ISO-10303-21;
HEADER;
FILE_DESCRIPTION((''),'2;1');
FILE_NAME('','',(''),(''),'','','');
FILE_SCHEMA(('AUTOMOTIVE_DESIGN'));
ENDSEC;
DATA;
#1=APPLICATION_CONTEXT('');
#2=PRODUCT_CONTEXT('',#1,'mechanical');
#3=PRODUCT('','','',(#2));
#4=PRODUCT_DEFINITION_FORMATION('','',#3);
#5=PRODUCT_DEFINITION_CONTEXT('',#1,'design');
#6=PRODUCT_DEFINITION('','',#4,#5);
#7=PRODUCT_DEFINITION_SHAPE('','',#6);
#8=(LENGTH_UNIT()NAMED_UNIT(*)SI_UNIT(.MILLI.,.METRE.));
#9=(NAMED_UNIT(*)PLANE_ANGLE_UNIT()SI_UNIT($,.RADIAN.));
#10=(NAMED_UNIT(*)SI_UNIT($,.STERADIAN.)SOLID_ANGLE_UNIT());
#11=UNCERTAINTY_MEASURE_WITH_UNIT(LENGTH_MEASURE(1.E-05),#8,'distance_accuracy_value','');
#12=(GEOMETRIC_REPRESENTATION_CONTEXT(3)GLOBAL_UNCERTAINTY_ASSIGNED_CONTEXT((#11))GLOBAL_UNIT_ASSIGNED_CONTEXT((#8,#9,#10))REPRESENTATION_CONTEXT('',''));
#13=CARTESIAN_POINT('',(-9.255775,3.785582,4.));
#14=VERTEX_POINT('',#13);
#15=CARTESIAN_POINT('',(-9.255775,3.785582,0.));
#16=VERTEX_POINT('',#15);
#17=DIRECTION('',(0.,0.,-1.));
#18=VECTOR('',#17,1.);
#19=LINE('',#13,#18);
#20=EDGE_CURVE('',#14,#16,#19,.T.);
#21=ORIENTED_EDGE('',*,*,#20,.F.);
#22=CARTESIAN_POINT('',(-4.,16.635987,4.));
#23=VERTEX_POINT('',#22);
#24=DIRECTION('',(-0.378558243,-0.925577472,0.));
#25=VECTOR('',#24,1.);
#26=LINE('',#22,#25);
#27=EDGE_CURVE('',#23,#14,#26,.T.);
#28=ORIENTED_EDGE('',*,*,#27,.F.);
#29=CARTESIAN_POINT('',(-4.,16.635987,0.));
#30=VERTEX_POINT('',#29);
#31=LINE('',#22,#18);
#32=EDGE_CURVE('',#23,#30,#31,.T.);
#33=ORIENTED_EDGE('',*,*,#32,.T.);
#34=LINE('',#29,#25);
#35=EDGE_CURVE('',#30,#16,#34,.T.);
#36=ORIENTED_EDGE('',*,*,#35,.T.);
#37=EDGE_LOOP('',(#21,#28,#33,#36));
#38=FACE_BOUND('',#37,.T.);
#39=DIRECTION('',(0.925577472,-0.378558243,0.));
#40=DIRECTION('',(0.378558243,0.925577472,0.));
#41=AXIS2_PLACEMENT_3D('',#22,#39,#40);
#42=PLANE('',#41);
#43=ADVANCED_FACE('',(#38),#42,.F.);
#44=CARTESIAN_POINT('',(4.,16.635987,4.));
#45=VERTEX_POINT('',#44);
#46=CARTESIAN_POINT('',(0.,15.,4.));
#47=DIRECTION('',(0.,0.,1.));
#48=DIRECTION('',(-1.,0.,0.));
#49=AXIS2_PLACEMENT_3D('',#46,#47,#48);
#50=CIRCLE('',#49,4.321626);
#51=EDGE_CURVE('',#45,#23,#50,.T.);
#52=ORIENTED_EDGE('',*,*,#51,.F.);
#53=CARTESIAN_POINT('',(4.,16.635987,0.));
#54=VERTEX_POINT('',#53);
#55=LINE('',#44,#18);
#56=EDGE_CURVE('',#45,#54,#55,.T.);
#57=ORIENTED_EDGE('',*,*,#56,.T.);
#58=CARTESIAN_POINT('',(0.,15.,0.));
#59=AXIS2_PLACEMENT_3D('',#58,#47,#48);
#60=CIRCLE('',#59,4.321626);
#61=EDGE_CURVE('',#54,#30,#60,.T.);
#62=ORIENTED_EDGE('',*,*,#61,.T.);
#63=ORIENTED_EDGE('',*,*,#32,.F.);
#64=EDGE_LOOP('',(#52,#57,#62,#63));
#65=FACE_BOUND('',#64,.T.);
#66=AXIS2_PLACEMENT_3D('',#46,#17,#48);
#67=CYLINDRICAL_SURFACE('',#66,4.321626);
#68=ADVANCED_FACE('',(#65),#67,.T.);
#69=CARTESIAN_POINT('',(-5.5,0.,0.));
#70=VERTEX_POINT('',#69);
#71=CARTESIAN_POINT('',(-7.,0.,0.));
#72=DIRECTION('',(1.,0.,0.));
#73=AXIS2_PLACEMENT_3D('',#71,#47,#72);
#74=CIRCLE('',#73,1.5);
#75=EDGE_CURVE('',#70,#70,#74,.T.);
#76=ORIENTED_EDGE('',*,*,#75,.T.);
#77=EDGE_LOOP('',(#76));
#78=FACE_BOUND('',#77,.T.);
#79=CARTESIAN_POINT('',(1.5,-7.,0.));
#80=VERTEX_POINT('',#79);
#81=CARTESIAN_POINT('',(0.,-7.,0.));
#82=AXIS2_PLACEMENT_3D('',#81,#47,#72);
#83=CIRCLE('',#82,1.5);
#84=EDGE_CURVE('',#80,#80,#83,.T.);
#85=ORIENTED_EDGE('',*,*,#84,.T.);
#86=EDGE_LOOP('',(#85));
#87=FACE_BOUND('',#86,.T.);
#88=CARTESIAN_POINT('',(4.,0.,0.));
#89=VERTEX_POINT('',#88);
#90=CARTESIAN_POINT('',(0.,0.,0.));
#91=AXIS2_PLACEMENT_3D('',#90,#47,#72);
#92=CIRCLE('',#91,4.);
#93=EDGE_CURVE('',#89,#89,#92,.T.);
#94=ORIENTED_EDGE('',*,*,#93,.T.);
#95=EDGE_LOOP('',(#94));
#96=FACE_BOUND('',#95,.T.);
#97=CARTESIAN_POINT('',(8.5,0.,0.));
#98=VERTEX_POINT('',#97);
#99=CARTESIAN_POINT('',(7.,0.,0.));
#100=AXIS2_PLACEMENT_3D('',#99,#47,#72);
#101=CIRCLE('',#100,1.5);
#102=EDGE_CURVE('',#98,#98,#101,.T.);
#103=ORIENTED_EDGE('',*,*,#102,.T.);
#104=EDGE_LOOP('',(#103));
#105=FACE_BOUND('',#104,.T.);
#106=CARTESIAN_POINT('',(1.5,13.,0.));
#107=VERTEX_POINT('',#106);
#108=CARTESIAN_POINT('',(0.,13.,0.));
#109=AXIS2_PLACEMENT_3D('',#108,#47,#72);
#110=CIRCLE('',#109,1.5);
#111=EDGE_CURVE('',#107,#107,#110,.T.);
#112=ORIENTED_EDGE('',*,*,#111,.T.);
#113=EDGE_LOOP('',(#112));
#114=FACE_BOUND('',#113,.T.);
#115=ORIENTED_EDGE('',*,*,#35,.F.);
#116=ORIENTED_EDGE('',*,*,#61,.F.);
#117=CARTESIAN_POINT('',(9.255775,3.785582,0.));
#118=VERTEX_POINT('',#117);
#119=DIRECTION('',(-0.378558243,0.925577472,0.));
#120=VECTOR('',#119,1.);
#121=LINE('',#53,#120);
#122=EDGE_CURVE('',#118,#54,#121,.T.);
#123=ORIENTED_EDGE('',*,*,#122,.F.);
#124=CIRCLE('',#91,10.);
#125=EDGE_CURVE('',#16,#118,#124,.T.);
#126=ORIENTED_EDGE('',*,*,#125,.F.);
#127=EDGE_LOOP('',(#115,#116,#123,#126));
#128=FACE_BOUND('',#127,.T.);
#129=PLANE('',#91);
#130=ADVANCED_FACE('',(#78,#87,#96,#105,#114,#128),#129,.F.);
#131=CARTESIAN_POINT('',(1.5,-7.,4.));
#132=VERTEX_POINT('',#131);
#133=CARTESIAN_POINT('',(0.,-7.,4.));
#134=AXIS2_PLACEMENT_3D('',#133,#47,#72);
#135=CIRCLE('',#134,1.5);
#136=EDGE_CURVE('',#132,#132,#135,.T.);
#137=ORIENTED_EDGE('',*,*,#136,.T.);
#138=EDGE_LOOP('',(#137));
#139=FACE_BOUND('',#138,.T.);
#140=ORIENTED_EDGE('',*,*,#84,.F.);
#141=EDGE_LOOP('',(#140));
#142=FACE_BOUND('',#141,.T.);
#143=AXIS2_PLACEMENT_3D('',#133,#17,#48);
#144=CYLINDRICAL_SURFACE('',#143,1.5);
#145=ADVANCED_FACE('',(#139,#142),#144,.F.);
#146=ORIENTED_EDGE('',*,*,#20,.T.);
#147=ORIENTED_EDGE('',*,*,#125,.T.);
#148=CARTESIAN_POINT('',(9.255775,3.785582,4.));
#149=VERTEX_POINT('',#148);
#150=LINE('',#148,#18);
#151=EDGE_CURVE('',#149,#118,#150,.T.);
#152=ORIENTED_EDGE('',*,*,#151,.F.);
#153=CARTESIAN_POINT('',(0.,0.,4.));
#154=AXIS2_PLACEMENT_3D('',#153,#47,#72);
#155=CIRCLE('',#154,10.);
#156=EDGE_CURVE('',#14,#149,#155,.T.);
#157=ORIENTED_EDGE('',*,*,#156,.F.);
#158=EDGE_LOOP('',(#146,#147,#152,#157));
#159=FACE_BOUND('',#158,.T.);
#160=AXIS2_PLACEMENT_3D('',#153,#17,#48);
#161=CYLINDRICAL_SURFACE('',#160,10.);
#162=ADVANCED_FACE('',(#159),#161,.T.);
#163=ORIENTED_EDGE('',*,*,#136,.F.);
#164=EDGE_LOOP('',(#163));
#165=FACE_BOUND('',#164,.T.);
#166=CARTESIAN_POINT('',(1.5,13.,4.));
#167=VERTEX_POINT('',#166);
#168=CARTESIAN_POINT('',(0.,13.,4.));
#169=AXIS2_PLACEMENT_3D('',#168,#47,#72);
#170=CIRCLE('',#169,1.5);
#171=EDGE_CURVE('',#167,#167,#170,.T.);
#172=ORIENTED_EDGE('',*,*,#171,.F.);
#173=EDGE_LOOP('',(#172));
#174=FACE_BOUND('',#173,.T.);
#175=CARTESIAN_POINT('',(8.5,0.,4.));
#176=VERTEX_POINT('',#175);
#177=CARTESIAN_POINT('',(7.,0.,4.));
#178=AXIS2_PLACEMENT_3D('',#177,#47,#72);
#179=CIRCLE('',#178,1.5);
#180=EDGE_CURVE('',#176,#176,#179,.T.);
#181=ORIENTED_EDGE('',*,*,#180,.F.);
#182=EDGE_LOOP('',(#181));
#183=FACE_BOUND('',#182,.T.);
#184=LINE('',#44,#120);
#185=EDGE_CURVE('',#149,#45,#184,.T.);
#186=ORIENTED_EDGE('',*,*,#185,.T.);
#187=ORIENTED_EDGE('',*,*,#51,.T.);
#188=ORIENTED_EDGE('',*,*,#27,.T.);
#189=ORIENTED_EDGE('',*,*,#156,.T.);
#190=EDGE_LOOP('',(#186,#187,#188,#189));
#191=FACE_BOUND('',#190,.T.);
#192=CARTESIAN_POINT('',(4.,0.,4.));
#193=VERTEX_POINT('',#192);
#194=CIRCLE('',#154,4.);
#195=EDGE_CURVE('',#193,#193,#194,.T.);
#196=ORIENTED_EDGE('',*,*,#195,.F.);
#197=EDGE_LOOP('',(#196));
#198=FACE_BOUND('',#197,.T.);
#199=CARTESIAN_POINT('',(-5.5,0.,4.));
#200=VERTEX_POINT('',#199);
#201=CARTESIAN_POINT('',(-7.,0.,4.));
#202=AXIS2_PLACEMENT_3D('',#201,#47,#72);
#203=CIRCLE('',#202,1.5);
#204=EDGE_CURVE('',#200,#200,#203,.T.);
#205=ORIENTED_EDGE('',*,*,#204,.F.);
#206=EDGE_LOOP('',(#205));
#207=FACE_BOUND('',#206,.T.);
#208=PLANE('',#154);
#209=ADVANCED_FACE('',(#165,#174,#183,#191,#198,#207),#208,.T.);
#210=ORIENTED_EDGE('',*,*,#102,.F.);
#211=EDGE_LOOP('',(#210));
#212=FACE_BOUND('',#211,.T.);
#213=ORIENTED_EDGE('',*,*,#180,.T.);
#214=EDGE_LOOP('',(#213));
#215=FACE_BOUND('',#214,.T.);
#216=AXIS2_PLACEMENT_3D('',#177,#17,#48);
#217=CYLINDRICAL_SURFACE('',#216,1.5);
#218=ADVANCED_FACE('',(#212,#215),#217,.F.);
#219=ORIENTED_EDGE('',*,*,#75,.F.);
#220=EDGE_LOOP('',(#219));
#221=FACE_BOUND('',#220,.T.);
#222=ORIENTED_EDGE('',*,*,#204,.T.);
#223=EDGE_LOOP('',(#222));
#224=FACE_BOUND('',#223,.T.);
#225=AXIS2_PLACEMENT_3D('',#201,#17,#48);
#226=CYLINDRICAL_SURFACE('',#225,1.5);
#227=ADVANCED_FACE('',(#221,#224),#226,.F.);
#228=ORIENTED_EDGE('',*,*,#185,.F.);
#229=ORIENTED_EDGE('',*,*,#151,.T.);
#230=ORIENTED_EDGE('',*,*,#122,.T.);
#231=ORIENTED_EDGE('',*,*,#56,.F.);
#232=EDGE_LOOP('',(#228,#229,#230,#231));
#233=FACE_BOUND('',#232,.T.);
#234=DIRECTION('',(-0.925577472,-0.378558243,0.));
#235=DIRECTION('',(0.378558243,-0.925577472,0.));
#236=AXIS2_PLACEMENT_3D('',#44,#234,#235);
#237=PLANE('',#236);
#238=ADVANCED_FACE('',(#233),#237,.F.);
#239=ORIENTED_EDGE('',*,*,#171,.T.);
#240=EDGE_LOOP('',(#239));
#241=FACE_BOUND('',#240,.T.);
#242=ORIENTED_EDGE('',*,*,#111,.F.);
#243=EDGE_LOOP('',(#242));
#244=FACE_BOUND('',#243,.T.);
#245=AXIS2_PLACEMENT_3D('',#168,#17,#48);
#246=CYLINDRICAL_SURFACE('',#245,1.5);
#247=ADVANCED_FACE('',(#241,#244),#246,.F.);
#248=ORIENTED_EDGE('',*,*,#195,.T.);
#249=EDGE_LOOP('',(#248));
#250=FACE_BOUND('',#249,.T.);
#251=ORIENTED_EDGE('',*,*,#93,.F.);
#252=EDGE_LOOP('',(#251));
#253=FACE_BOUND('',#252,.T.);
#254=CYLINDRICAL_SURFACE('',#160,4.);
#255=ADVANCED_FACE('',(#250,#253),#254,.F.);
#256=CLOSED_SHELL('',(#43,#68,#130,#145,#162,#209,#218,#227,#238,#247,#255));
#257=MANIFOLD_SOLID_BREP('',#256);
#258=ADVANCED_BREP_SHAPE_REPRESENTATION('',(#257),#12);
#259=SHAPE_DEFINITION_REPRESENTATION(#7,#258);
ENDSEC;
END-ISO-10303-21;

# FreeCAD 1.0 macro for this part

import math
import FreeCAD as App
import Part
import Sketcher

doc = App.newDocument("Part")
body = doc.addObject("PartDesign::Body", "Body")

# Sketch on XY plane
sketch1 = doc.addObject("Sketcher::SketchObject", "Sketch")
body.addObject(sketch1)
sketch1.AttachmentSupport = (doc.XY_Plane, [""])
sketch1.MapMode = "FlatFace"
sketch1.addGeometry(Part.LineSegment(App.Vector(-4, 16.635987, 0), App.Vector(-9.255775, 3.785582, 0)), False)
sketch1.addGeometry(Part.ArcOfCircle(Part.Circle(App.Vector(0, 0, 0), App.Vector(0, 0, 1), 10), math.radians(157.755595), math.radians(382.244405)), False)
sketch1.addGeometry(Part.LineSegment(App.Vector(9.255775, 3.785582, 0), App.Vector(4, 16.635987, 0)), False)
sketch1.addGeometry(Part.ArcOfCircle(Part.Circle(App.Vector(0, 15, 0), App.Vector(0, 0, 1), 4.321626), math.radians(22.244405), math.radians(157.755595)), False)
sketch1.addGeometry(Part.Circle(App.Vector(-7, 0, 0), App.Vector(0, 0, 1), 1.5), False)
sketch1.addGeometry(Part.Circle(App.Vector(0, -7, 0), App.Vector(0, 0, 1), 1.5), False)
sketch1.addGeometry(Part.Circle(App.Vector(0, 0, 0), App.Vector(0, 0, 1), 4), False)
sketch1.addGeometry(Part.Circle(App.Vector(7, 0, 0), App.Vector(0, 0, 1), 1.5), False)
sketch1.addGeometry(Part.Circle(App.Vector(0, 13, 0), App.Vector(0, 0, 1), 1.5), False)
sketch1.addConstraint(Sketcher.Constraint("Tangent", 0, 2, 1, 1))
sketch1.addConstraint(Sketcher.Constraint("Tangent", 1, 2, 2, 1))
sketch1.addConstraint(Sketcher.Constraint("Tangent", 2, 2, 3, 1))
sketch1.addConstraint(Sketcher.Constraint("Tangent", 3, 2, 0, 1))
sketch1.addConstraint(Sketcher.Constraint("Coincident", 1, 3, -1, 1))
sketch1.addConstraint(Sketcher.Constraint("Coincident", 6, 3, -1, 1))
sketch1.addConstraint(Sketcher.Constraint("Equal", 4, 5))
sketch1.addConstraint(Sketcher.Constraint("Equal", 5, 7))
sketch1.addConstraint(Sketcher.Constraint("Equal", 7, 8))
sketch1.addConstraint(Sketcher.Constraint("Symmetric", 4, 3, 7, 3, -1, 1))
sketch1.addConstraint(Sketcher.Constraint("PointOnObject", 3, 3, -2))
sketch1.addConstraint(Sketcher.Constraint("PointOnObject", 4, 3, -1))
sketch1.addConstraint(Sketcher.Constraint("PointOnObject", 5, 3, -2))
sketch1.addConstraint(Sketcher.Constraint("PointOnObject", 8, 3, -2))
sketch1.addConstraint(Sketcher.Constraint("Diameter", 4, 3.0))
sketch1.addConstraint(Sketcher.Constraint("Diameter", 6, 8.0))
sketch1.addConstraint(Sketcher.Constraint("Radius", 1, 10.0))
sketch1.addConstraint(Sketcher.Constraint("DistanceY", -1, 1, 3, 3, 15.0))
sketch1.addConstraint(Sketcher.Constraint("DistanceX", 4, 3, -1, 1, 7.0))
sketch1.addConstraint(Sketcher.Constraint("DistanceY", 5, 3, -1, 1, 7.0))
sketch1.addConstraint(Sketcher.Constraint("DistanceY", -1, 1, 8, 3, 13.0))
sketch1.addConstraint(Sketcher.Constraint("DistanceX", -1, 1, 2, 2, 4.0))
pad1 = doc.addObject("PartDesign::Pad", "Pad")
body.addObject(pad1)
pad1.Profile = sketch1
pad1.Length = 4

doc.recompute()
